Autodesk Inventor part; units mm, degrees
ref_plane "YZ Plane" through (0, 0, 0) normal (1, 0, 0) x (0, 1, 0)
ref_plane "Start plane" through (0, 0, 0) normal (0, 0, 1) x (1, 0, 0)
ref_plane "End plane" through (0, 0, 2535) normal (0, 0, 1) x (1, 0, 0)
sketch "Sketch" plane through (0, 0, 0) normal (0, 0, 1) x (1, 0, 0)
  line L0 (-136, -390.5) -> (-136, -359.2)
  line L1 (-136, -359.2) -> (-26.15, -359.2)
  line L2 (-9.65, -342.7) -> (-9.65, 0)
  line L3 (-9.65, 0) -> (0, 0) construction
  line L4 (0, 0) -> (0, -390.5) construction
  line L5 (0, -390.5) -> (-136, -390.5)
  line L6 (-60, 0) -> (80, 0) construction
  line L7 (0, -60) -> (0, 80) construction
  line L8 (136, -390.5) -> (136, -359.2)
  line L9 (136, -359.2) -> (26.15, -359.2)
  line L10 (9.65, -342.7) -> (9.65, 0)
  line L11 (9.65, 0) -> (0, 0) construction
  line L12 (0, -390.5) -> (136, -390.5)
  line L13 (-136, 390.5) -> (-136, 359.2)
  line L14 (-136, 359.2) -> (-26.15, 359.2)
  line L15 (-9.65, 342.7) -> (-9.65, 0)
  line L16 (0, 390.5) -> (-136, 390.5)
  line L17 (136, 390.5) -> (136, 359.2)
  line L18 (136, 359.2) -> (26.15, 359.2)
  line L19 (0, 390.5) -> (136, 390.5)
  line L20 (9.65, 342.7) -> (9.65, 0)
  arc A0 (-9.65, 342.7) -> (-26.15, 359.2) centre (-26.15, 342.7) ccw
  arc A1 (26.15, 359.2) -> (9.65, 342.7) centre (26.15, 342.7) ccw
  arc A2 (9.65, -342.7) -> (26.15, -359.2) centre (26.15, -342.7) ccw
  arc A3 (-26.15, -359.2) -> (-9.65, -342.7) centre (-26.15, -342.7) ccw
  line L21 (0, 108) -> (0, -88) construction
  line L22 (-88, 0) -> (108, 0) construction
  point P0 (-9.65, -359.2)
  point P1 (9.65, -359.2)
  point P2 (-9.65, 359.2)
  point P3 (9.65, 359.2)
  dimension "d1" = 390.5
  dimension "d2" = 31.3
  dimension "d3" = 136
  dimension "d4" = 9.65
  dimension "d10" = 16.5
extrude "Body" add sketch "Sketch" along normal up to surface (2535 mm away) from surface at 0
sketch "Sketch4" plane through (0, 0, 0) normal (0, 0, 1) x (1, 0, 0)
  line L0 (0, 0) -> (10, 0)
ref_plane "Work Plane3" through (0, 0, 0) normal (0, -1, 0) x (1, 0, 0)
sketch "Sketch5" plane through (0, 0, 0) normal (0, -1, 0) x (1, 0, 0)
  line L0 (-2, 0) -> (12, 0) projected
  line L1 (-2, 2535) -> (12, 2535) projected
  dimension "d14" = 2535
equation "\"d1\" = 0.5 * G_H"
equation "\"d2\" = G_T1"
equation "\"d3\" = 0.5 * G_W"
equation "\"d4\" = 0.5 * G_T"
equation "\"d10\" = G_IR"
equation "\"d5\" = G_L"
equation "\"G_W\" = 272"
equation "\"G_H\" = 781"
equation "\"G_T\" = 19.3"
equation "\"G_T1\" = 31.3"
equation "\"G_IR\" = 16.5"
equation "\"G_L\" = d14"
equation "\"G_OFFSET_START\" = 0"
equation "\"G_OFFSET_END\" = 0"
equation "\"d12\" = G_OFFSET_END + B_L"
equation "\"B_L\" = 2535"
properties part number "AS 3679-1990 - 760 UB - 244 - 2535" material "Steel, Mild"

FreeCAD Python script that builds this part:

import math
import FreeCAD as App
import Part
import Sketcher
Q = App.Units.Quantity

doc = App.newDocument("Part")
body = doc.addObject("PartDesign::Body", "Body")

# Sketch on XY plane
sketch1 = body.newObject("Sketcher::SketchObject", "Sketch")
sketch1.AttachmentSupport = (doc.getObject("XY_Plane"), [""])
sketch1.MapMode = "FlatFace"
sketch1.addGeometry(Part.LineSegment(App.Vector(-136, -359.2, 0), App.Vector(-136, -390.5, 0)), False)
sketch1.addGeometry(Part.LineSegment(App.Vector(-136, -390.5, 0), App.Vector(136, -390.5, 0)), False)
sketch1.addGeometry(Part.LineSegment(App.Vector(136, -390.5, 0), App.Vector(136, -359.2, 0)), False)
sketch1.addGeometry(Part.LineSegment(App.Vector(136, -359.2, 0), App.Vector(26.15, -359.2, 0)), False)
sketch1.addGeometry(Part.ArcOfCircle(Part.Circle(App.Vector(26.15, -342.7, 0), App.Vector(0, 0, 1), 16.5), math.radians(180), math.radians(270)), False)
sketch1.addGeometry(Part.LineSegment(App.Vector(9.65, -342.7, 0), App.Vector(9.65, 342.7, 0)), False)
sketch1.addGeometry(Part.ArcOfCircle(Part.Circle(App.Vector(26.15, 342.7, 0), App.Vector(0, 0, 1), 16.5), math.radians(90), math.radians(180)), False)
sketch1.addGeometry(Part.LineSegment(App.Vector(26.15, 359.2, 0), App.Vector(136, 359.2, 0)), False)
sketch1.addGeometry(Part.LineSegment(App.Vector(136, 359.2, 0), App.Vector(136, 390.5, 0)), False)
sketch1.addGeometry(Part.LineSegment(App.Vector(136, 390.5, 0), App.Vector(-136, 390.5, 0)), False)
sketch1.addGeometry(Part.LineSegment(App.Vector(-136, 390.5, 0), App.Vector(-136, 359.2, 0)), False)
sketch1.addGeometry(Part.LineSegment(App.Vector(-136, 359.2, 0), App.Vector(-26.15, 359.2, 0)), False)
sketch1.addGeometry(Part.ArcOfCircle(Part.Circle(App.Vector(-26.15, 342.7, 0), App.Vector(0, 0, 1), 16.5), math.radians(0), math.radians(90)), False)
sketch1.addGeometry(Part.LineSegment(App.Vector(-9.65, 342.7, 0), App.Vector(-9.65, -342.7, 0)), False)
sketch1.addGeometry(Part.ArcOfCircle(Part.Circle(App.Vector(-26.15, -342.7, 0), App.Vector(0, 0, 1), 16.5), math.radians(-90), math.radians(0)), False)
sketch1.addGeometry(Part.LineSegment(App.Vector(-26.15, -359.2, 0), App.Vector(-136, -359.2, 0)), False)
sketch1.addConstraint(Sketcher.Constraint("Coincident", 0, 2, 1, 1))
sketch1.addConstraint(Sketcher.Constraint("Coincident", 1, 2, 2, 1))
sketch1.addConstraint(Sketcher.Constraint("Coincident", 2, 2, 3, 1))
sketch1.addConstraint(Sketcher.Constraint("Tangent", 3, 2, 4, 2))
sketch1.addConstraint(Sketcher.Constraint("Tangent", 4, 1, 5, 1))
sketch1.addConstraint(Sketcher.Constraint("Tangent", 5, 2, 6, 2))
sketch1.addConstraint(Sketcher.Constraint("Tangent", 6, 1, 7, 1))
sketch1.addConstraint(Sketcher.Constraint("Coincident", 7, 2, 8, 1))
sketch1.addConstraint(Sketcher.Constraint("Coincident", 8, 2, 9, 1))
sketch1.addConstraint(Sketcher.Constraint("Coincident", 9, 2, 10, 1))
sketch1.addConstraint(Sketcher.Constraint("Coincident", 10, 2, 11, 1))
sketch1.addConstraint(Sketcher.Constraint("Tangent", 11, 2, 12, 2))
sketch1.addConstraint(Sketcher.Constraint("Tangent", 12, 1, 13, 1))
sketch1.addConstraint(Sketcher.Constraint("Tangent", 13, 2, 14, 2))
sketch1.addConstraint(Sketcher.Constraint("Tangent", 14, 1, 15, 1))
sketch1.addConstraint(Sketcher.Constraint("Coincident", 15, 2, 0, 1))
sketch1.addConstraint(Sketcher.Constraint("Vertical", 0))
sketch1.addConstraint(Sketcher.Constraint("Horizontal", 1))
sketch1.addConstraint(Sketcher.Constraint("Vertical", 2))
sketch1.addConstraint(Sketcher.Constraint("Horizontal", 3))
sketch1.addConstraint(Sketcher.Constraint("Vertical", 5))
sketch1.addConstraint(Sketcher.Constraint("Horizontal", 7))
sketch1.addConstraint(Sketcher.Constraint("Vertical", 8))
sketch1.addConstraint(Sketcher.Constraint("Horizontal", 9))
sketch1.addConstraint(Sketcher.Constraint("Vertical", 10))
sketch1.addConstraint(Sketcher.Constraint("Horizontal", 11))
sketch1.addConstraint(Sketcher.Constraint("Vertical", 13))
sketch1.addConstraint(Sketcher.Constraint("Horizontal", 15))
sketch1.addConstraint(Sketcher.Constraint("Equal", 4, 6))
sketch1.addConstraint(Sketcher.Constraint("Equal", 6, 12))
sketch1.addConstraint(Sketcher.Constraint("Equal", 12, 14))
sketch1.addConstraint(Sketcher.Constraint("Symmetric", 4, 3, 12, 3, -1, 1))
sketch1.addConstraint(Sketcher.Constraint("Symmetric", 0, 2, 8, 2, -1, 1))
sketch1.addConstraint(Sketcher.Constraint("Symmetric", 7, 2, 10, 2, -2))
sketch1.addConstraint(Sketcher.Constraint("Symmetric", 2, 2, 15, 2, -2))
sketch1.addConstraint(Sketcher.Constraint("Radius", 4, Q("16.5 mm")))
sketch1.addConstraint(Sketcher.Constraint("DistanceY", 0, 2, 0, 1, Q("31.3 mm")))
sketch1.addConstraint(Sketcher.Constraint("DistanceX", 0, 2, -1, 1, Q("136 mm")))
sketch1.addConstraint(Sketcher.Constraint("DistanceY", 0, 2, -1, 1, Q("390.5 mm")))
sketch1.addConstraint(Sketcher.Constraint("DistanceX", -1, 1, 4, 1, Q("9.65 mm")))
pad1 = body.newObject("PartDesign::Pad", "Pad")
pad1.Profile = sketch1
pad1.Length = 2535

doc.recompute()
